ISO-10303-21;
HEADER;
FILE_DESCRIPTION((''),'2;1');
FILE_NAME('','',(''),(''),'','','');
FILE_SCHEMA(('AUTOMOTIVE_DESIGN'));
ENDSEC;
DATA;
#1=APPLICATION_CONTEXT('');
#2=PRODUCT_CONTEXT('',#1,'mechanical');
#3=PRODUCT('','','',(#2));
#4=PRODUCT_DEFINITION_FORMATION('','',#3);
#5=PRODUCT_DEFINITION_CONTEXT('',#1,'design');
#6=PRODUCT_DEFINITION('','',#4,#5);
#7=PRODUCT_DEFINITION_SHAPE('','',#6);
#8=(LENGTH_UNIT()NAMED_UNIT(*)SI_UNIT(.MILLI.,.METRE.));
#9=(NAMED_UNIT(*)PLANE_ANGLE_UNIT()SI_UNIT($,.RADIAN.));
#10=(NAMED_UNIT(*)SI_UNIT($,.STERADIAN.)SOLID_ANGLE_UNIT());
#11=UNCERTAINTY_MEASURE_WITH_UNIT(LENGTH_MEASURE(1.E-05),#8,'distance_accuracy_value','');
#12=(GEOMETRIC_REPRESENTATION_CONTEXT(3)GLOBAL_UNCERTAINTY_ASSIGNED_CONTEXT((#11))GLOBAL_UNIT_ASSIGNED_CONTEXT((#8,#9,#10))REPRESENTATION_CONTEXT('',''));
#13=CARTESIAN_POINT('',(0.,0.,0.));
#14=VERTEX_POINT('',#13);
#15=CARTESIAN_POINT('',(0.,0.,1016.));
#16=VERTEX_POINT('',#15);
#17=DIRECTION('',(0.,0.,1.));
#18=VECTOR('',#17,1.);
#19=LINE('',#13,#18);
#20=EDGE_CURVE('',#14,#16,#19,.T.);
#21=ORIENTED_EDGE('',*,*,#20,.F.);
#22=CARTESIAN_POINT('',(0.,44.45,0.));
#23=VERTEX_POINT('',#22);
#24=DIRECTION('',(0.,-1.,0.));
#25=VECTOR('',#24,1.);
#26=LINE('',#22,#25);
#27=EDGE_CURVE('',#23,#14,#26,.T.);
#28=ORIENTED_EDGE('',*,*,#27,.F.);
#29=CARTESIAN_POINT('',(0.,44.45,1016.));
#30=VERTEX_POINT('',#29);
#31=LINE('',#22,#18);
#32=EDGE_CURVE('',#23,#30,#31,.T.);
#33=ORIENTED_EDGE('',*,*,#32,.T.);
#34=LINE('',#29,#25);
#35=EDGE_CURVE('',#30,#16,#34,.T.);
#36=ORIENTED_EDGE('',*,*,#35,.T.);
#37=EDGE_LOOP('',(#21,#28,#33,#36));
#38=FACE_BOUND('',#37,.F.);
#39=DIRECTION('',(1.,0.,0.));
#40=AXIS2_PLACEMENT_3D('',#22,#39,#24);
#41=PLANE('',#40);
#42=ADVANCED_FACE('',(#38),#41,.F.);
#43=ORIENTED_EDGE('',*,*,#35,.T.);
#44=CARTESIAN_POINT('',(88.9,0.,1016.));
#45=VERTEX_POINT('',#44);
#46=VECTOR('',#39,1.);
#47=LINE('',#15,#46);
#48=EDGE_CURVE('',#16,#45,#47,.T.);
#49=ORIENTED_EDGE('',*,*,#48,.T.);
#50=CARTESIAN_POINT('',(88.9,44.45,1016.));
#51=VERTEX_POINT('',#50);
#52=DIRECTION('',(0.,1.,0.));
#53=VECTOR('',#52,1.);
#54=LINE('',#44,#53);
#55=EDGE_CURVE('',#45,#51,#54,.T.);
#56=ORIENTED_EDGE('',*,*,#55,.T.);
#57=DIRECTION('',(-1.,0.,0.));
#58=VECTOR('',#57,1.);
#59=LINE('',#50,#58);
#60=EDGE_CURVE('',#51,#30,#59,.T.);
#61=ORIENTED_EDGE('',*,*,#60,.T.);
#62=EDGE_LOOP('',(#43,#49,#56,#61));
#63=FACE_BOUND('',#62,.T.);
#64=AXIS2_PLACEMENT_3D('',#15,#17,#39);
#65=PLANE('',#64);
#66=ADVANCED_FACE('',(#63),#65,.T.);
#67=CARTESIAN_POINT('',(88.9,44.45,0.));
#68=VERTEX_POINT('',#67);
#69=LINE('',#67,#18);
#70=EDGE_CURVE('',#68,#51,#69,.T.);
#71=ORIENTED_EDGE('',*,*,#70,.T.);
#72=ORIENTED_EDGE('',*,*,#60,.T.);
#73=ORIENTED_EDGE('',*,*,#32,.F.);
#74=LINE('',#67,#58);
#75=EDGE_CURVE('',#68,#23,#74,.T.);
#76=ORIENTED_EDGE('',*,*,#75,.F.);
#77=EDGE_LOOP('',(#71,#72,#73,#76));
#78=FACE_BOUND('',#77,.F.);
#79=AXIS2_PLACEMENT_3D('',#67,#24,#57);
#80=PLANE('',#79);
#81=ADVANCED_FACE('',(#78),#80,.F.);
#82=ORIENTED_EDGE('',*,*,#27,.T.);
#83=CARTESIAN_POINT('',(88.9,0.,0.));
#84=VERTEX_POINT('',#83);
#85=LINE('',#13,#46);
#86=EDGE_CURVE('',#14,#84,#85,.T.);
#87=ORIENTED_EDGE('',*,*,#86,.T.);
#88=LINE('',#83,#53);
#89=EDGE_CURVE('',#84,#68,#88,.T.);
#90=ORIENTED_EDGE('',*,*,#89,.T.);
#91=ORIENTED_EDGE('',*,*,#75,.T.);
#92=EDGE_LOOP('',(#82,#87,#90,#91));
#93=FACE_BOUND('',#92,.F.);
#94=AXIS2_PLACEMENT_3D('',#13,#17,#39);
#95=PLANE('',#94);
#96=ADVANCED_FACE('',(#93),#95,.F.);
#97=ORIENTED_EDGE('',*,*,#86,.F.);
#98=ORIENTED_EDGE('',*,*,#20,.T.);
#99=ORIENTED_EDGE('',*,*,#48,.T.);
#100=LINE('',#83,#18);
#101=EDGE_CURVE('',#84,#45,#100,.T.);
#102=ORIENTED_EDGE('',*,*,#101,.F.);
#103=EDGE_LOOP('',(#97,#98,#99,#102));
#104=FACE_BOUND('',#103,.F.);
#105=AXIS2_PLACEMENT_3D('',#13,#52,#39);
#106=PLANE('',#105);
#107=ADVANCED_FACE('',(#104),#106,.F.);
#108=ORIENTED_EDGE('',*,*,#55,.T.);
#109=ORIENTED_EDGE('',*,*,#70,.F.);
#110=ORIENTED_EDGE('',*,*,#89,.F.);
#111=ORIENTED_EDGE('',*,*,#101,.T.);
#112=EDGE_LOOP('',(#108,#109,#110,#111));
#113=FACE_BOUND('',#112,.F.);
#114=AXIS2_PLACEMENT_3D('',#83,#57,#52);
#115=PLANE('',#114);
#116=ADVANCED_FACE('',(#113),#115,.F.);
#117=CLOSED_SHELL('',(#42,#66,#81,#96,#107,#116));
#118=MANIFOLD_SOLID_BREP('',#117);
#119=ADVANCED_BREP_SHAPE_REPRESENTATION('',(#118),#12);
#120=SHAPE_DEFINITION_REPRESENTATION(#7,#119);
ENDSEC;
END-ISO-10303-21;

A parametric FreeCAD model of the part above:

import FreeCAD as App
import Part
import Sketcher
Q = App.Units.Quantity


def add_polygon(sketch, points):
    """Adds a closed chain of lines whose ends are joined by coincident constraints."""
    first, n = sketch.GeometryCount, len(points)
    for a, b in zip(points, points[1:] + points[:1]):
        sketch.addGeometry(Part.LineSegment(App.Vector(*a, 0), App.Vector(*b, 0)), False)
    for i in range(n):
        sketch.addConstraint(Sketcher.Constraint("Coincident", first + i, 2, first + (i + 1) % n, 1))

doc = App.newDocument("Part")
params = doc.addObject("Spreadsheet::Sheet", "Params")
for row, (alias, value) in enumerate([
    ("sketch1_width", "3.5 in"),
    ("sketch1_height", "1.75 in"),
    ("pad1_length", "40 in"),
], start=1):
    params.set(f"A{row}", alias)
    params.set(f"B{row}", "=" + value)
    params.setAlias(f"B{row}", alias)

body = doc.addObject("PartDesign::Body", "Body")

sketch1 = body.newObject("Sketcher::SketchObject", "Sketch")
sketch1.AttachmentSupport = (doc.getObject("XY_Plane"), [""])
sketch1.MapMode = "FlatFace"
add_polygon(sketch1, [(0, 44), (0, 0), (89, 0), (89, 44)])
sketch1.addConstraint([
    Sketcher.Constraint("Vertical", 0),
    Sketcher.Constraint("Horizontal", 1),
    Sketcher.Constraint("Vertical", 2),
    Sketcher.Constraint("Horizontal", 3),
    Sketcher.Constraint("Coincident", 0, 2, -1, 1),
    Sketcher.Constraint("DistanceX", 1, 1, 1, 2, Q("3.5 in")),
    Sketcher.Constraint("DistanceY", 0, 2, 0, 1, Q("1.75 in")),
])
sketch1.setExpression("Constraints[9]", "Params.sketch1_width")
sketch1.setExpression("Constraints[10]", "Params.sketch1_height")
pad1 = body.newObject("PartDesign::Pad", "Pad")
pad1.Profile = sketch1
pad1.setExpression("Length", "Params.pad1_length")

doc.recompute()
